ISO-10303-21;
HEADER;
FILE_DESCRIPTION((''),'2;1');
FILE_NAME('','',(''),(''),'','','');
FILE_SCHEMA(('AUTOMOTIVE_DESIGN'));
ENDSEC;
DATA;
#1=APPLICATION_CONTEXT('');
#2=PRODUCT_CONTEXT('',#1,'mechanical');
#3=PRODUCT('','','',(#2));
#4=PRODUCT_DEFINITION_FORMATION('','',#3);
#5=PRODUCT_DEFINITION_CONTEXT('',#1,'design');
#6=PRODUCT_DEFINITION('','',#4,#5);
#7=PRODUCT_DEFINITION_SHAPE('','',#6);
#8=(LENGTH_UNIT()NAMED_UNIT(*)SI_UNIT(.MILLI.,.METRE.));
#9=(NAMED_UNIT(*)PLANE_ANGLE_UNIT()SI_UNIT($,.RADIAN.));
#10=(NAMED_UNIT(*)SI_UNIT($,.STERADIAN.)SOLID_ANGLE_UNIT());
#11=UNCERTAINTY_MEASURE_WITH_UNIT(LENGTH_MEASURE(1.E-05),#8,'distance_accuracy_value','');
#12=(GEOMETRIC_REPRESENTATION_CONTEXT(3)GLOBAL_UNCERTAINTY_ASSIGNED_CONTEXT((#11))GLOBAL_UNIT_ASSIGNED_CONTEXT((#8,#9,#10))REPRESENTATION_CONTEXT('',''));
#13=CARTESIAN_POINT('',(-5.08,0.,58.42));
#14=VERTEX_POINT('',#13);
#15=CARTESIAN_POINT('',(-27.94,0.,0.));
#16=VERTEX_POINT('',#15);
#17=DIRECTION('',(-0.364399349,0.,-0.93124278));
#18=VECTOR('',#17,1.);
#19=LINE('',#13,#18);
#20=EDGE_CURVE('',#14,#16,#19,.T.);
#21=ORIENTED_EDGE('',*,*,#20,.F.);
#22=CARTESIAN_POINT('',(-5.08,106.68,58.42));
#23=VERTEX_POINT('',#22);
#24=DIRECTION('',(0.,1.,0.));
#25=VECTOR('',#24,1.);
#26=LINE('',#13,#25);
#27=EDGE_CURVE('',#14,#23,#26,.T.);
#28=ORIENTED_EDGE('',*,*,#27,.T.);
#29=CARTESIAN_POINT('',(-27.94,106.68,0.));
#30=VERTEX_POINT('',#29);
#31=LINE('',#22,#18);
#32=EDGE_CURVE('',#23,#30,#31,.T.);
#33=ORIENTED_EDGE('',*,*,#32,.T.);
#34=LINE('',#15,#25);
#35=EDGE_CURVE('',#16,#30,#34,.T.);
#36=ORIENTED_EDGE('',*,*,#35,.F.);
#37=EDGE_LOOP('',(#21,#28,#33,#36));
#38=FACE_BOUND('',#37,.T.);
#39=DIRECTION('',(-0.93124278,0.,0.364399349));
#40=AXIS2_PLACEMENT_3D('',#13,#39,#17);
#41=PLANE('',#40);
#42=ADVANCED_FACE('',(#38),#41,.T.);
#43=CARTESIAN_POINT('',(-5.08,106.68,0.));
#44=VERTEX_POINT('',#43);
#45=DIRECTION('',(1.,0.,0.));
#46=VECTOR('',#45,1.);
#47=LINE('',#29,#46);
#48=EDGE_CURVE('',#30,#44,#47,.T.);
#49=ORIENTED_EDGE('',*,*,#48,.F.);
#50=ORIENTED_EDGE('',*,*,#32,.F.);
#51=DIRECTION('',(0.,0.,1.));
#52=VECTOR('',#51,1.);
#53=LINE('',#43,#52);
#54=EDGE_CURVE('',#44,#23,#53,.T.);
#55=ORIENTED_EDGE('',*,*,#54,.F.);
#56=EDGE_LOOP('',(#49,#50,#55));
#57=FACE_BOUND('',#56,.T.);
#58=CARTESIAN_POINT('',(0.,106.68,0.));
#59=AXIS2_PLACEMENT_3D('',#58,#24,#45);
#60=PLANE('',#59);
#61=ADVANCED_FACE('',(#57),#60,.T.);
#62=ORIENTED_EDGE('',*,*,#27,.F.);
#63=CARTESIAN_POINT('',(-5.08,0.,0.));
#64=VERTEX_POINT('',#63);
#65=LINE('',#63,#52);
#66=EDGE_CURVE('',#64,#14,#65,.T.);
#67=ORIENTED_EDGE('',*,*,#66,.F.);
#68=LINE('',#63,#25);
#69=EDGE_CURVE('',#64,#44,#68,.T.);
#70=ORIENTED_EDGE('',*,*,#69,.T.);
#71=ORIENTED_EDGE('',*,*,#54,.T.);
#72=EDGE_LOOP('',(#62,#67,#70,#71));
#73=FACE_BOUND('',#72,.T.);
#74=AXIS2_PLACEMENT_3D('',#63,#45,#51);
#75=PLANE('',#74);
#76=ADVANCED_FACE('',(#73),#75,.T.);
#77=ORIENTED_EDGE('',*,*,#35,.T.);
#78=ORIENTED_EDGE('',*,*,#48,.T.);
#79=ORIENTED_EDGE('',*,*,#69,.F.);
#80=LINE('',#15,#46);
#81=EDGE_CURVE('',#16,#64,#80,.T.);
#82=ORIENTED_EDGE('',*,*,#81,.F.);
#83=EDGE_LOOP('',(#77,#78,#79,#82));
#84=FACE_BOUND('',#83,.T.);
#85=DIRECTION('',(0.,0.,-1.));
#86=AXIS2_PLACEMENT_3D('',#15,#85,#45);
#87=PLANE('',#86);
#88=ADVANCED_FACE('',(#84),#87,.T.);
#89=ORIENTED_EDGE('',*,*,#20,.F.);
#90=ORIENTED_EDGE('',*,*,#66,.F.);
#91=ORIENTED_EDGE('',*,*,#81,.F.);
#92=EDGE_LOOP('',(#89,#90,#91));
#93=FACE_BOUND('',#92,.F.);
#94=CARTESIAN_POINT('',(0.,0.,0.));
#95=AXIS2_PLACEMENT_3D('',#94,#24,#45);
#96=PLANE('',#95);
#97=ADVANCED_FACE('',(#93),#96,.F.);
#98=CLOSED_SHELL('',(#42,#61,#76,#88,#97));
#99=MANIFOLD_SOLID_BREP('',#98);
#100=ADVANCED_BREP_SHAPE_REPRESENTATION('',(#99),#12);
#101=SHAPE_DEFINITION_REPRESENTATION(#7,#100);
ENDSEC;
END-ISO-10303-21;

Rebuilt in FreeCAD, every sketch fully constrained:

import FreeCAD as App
import Part
import Sketcher
from FreeCAD import Vector
Q = App.Units.Quantity


def add_polygon(sketch, points):
    """Adds a closed chain of lines whose ends are joined by coincident constraints."""
    first, n = sketch.GeometryCount, len(points)
    for a, b in zip(points, points[1:] + points[:1]):
        sketch.addGeometry(Part.LineSegment(App.Vector(*a, 0), App.Vector(*b, 0)), False)
    for i in range(n):
        sketch.addConstraint(Sketcher.Constraint("Coincident", first + i, 2, first + (i + 1) % n, 1))

doc = App.newDocument("Part")
params = doc.addObject("Spreadsheet::Sheet", "Params")
for row, (alias, value) in enumerate([
    ("sketch1_width", "0.9 in"),
    ("sketch1_height", "2.3 in"),
    ("pad1_length", "4.2 in"),
], start=1):
    params.set(f"A{row}", alias)
    params.set(f"B{row}", "=" + value)
    params.setAlias(f"B{row}", alias)

body = doc.addObject("PartDesign::Body", "Body")

# Sketch on XZ plane
sketch1 = body.newObject("Sketcher::SketchObject", "Sketch")
sketch1.AttachmentSupport = (doc.getObject("XZ_Plane"), [""])
sketch1.MapMode = "FlatFace"
add_polygon(sketch1, [(-5, 0), (-28, 0), (-5, 58)])  # lines 0-2
sketch1.addConstraint([
    Sketcher.Constraint("Horizontal", 0),
    Sketcher.Constraint("Vertical", 2),
    Sketcher.Constraint("PointOnObject", 0, 2, -1),
    Sketcher.Constraint("DistanceX", 0, 2, 0, 1, Q("0.9 in")),
    Sketcher.Constraint("DistanceY", 2, 2, 2, 1, Q("2.3 in")),
    Sketcher.Constraint("DistanceX", 0, 2, -1, 1, Q("1.1 in")),
])
sketch1.setExpression("Constraints[6]", "Params.sketch1_width")
sketch1.setExpression("Constraints[7]", "Params.sketch1_height")
pad1 = body.newObject("PartDesign::Pad", "Pad")
pad1.Profile = sketch1
pad1.setExpression("Length", "Params.pad1_length")
pad1.Reversed = True

doc.recompute()
